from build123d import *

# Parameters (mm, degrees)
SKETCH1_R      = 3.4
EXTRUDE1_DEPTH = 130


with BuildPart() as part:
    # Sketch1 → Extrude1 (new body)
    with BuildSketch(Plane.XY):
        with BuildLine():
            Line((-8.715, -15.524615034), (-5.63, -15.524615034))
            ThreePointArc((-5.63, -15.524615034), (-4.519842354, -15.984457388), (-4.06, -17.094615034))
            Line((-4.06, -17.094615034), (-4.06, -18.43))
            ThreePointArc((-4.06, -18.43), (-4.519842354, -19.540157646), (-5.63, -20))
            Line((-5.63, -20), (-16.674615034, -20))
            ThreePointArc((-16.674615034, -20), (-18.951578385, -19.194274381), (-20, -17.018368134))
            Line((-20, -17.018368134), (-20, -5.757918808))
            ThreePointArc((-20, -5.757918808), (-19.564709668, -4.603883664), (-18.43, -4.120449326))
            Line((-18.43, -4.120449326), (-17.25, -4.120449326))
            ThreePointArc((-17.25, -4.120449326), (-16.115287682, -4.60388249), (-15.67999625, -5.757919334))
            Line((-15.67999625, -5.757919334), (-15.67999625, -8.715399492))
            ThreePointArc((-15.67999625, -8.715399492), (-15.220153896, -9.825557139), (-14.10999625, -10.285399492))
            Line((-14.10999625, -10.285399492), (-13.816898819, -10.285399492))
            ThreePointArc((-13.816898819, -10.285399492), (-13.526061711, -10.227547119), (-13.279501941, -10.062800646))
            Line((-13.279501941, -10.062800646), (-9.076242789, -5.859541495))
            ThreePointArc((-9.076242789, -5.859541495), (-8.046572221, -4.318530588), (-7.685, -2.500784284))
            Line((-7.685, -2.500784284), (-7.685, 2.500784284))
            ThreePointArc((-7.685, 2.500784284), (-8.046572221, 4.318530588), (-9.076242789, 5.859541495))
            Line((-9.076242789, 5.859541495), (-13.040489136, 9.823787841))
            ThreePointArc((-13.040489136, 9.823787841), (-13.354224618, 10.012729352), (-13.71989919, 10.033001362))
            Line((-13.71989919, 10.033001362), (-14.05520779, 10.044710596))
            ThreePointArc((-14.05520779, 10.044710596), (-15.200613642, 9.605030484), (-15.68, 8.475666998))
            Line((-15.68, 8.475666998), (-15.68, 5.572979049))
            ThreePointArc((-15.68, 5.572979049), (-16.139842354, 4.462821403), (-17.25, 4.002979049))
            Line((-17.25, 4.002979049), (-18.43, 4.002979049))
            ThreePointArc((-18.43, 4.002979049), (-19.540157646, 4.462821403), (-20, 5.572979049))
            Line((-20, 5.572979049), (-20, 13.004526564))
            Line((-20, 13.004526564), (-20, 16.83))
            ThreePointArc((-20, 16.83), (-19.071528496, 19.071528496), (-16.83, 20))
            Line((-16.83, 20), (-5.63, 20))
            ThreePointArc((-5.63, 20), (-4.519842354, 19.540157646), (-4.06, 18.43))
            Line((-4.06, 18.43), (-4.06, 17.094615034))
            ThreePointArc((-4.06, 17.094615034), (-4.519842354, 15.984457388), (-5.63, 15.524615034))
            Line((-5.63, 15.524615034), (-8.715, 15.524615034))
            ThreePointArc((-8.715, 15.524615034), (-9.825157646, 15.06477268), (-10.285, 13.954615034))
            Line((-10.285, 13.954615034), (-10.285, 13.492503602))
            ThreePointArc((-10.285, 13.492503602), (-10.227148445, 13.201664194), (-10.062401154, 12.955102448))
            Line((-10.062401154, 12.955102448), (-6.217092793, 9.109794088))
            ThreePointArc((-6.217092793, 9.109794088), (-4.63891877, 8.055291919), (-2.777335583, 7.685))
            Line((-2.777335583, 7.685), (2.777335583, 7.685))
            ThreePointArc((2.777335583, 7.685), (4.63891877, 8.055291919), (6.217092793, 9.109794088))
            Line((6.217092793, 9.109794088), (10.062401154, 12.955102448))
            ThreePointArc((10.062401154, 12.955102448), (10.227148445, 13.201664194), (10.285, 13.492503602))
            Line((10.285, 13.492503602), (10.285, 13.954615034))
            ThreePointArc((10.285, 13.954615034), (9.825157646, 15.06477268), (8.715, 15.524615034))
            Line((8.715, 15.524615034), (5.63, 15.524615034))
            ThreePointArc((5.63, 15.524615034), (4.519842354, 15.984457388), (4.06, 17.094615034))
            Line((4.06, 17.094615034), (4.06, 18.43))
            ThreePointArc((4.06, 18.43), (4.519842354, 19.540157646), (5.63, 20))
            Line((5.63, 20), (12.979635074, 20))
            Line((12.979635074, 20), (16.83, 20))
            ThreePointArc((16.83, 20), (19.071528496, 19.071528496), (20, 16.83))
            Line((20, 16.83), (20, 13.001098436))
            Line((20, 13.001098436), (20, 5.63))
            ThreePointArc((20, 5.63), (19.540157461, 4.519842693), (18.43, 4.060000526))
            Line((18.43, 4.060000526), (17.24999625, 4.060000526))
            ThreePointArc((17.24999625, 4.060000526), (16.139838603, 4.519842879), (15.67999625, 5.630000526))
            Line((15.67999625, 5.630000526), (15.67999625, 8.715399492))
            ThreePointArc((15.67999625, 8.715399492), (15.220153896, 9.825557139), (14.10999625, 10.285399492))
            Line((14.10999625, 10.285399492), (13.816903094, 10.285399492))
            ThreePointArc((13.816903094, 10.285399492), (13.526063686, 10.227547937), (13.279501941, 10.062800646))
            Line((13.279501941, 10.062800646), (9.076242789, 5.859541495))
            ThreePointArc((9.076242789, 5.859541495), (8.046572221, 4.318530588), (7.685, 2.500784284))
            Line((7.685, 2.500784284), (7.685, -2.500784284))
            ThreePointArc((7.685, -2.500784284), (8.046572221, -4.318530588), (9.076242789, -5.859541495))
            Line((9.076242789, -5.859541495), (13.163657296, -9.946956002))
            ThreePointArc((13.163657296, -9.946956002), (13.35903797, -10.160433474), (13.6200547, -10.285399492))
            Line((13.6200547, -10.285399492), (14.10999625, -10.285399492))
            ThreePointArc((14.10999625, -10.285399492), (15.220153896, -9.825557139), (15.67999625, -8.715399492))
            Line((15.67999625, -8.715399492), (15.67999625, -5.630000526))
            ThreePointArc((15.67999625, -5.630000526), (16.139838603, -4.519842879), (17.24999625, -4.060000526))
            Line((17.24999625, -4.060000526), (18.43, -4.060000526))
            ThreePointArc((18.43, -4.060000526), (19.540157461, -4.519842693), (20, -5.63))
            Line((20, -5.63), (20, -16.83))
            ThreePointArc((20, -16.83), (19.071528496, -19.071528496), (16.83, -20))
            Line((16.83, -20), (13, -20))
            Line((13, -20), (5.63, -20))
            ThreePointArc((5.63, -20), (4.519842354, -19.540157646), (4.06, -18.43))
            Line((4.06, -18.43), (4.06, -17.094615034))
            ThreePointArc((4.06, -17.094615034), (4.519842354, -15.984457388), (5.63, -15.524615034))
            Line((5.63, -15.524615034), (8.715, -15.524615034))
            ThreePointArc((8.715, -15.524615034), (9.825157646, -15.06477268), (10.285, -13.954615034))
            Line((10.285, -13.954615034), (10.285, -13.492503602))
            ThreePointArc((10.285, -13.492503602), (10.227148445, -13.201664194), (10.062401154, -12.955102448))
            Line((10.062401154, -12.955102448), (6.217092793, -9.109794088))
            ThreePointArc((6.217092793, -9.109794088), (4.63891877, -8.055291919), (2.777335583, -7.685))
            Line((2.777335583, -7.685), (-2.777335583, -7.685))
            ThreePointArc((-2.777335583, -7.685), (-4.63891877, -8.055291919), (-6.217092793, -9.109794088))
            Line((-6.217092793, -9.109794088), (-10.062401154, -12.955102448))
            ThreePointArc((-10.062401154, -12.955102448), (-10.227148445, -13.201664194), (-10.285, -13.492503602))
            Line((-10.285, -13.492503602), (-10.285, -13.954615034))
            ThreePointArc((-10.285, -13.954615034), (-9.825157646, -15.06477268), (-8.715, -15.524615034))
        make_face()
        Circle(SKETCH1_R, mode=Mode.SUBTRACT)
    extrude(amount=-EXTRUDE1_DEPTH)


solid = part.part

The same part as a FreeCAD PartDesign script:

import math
import FreeCAD as App
import Part
import Sketcher
Q = App.Units.Quantity

doc = App.newDocument("Part")
params = doc.addObject("Spreadsheet::Sheet", "Params")
for row, (alias, value) in enumerate([
    ("sketch1_diameter", "6.8 mm"),
    ("sketch1_radius", "1.57 mm"),
    ("sketch1_radius2", "0.76 mm"),
    ("sketch1_radius3", "3.17 mm"),
    ("sketch1_radius4", "4.75 mm"),
    ("pad1_length", "130 mm"),
], start=1):
    params.set(f"A{row}", alias)
    params.set(f"B{row}", "=" + value)
    params.setAlias(f"B{row}", alias)

body = doc.addObject("PartDesign::Body", "Body")

# Sketch on XY plane
sketch1 = body.newObject("Sketcher::SketchObject", "Sketch")
sketch1.AttachmentSupport = (doc.getObject("XY_Plane"), [""])
sketch1.MapMode = "FlatFace"
sketch1.addGeometry(Part.LineSegment(App.Vector(-5.63, -15.52, 0), App.Vector(-8.71, -15.52, 0)), False)
sketch1.addGeometry(Part.ArcOfCircle(Part.Circle(App.Vector(-8.71, -13.95, 0), App.Vector(0, 0, 1), 1.57), math.radians(-180), math.radians(-90)), False)
sketch1.addGeometry(Part.LineSegment(App.Vector(-10.29, -13.95, 0), App.Vector(-10.29, -13.49, 0)), False)
sketch1.addGeometry(Part.ArcOfCircle(Part.Circle(App.Vector(-9.52, -13.49, 0), App.Vector(0, 0, 1), 0.76), math.radians(135), math.radians(180)), False)
sketch1.addGeometry(Part.LineSegment(App.Vector(-10.06, -12.96, 0), App.Vector(-6.22, -9.11, 0)), False)
sketch1.addGeometry(Part.ArcOfCircle(Part.Circle(App.Vector(-2.78, -12.55, 0), App.Vector(0, 0, 1), 4.86), math.radians(90), math.radians(135)), False)
sketch1.addGeometry(Part.LineSegment(App.Vector(-2.78, -7.68, 0), App.Vector(2.78, -7.68, 0)), False)
sketch1.addGeometry(Part.ArcOfCircle(Part.Circle(App.Vector(2.78, -12.55, 0), App.Vector(0, 0, 1), 4.86), math.radians(45), math.radians(90)), False)
sketch1.addGeometry(Part.LineSegment(App.Vector(6.22, -9.11, 0), App.Vector(10.06, -12.96, 0)), False)
sketch1.addGeometry(Part.ArcOfCircle(Part.Circle(App.Vector(9.52, -13.49, 0), App.Vector(0, 0, 1), 0.76), math.radians(0), math.radians(45)), False)
sketch1.addGeometry(Part.LineSegment(App.Vector(10.29, -13.49, 0), App.Vector(10.29, -13.95, 0)), False)
sketch1.addGeometry(Part.ArcOfCircle(Part.Circle(App.Vector(8.71, -13.95, 0), App.Vector(0, 0, 1), 1.57), math.radians(-90), math.radians(0)), False)
sketch1.addGeometry(Part.LineSegment(App.Vector(8.71, -15.52, 0), App.Vector(5.63, -15.52, 0)), False)
sketch1.addGeometry(Part.ArcOfCircle(Part.Circle(App.Vector(5.63, -17.09, 0), App.Vector(0, 0, 1), 1.57), math.radians(90), math.radians(180)), False)
sketch1.addGeometry(Part.LineSegment(App.Vector(4.06, -17.09, 0), App.Vector(4.06, -18.43, 0)), False)
sketch1.addGeometry(Part.ArcOfCircle(Part.Circle(App.Vector(5.63, -18.43, 0), App.Vector(0, 0, 1), 1.57), math.radians(-180), math.radians(-90)), False)
sketch1.addGeometry(Part.LineSegment(App.Vector(5.63, -20, 0), App.Vector(16.83, -20, 0)), False)
sketch1.addGeometry(Part.ArcOfCircle(Part.Circle(App.Vector(16.83, -16.83, 0), App.Vector(0, 0, 1), 3.17), math.radians(-90), math.radians(0)), False)
sketch1.addGeometry(Part.LineSegment(App.Vector(20, -16.83, 0), App.Vector(20, -5.63, 0)), False)
sketch1.addGeometry(Part.ArcOfCircle(Part.Circle(App.Vector(18.43, -5.63, 0), App.Vector(0, 0, 1), 1.57), math.radians(0), math.radians(90)), False)
sketch1.addGeometry(Part.LineSegment(App.Vector(18.43, -4.06, 0), App.Vector(17.25, -4.06, 0)), False)
sketch1.addGeometry(Part.ArcOfCircle(Part.Circle(App.Vector(17.25, -5.63, 0), App.Vector(0, 0, 1), 1.57), math.radians(90), math.radians(180)), False)
sketch1.addGeometry(Part.LineSegment(App.Vector(15.68, -5.63, 0), App.Vector(15.68, -8.72, 0)), False)
sketch1.addGeometry(Part.ArcOfCircle(Part.Circle(App.Vector(14.11, -8.72, 0), App.Vector(0, 0, 1), 1.57), math.radians(-90), math.radians(0)), False)
sketch1.addGeometry(Part.LineSegment(App.Vector(14.11, -10.29, 0), App.Vector(13.62, -10.29, 0)), False)
sketch1.addGeometry(Part.ArcOfCircle(Part.Circle(App.Vector(13.81, -9.55, 0), App.Vector(0, 0, 1), 0.76), math.radians(-149), math.radians(-105)), False)
sketch1.addGeometry(Part.LineSegment(App.Vector(13.16, -9.95, 0), App.Vector(9.08, -5.86, 0)), False)
sketch1.addGeometry(Part.ArcOfCircle(Part.Circle(App.Vector(12.44, -2.5, 0), App.Vector(0, 0, 1), 4.75), math.radians(-180), math.radians(-135)), False)
sketch1.addGeometry(Part.LineSegment(App.Vector(7.68, -2.5, 0), App.Vector(7.68, 2.5, 0)), False)
sketch1.addGeometry(Part.ArcOfCircle(Part.Circle(App.Vector(12.44, 2.5, 0), App.Vector(0, 0, 1), 4.75), math.radians(135), math.radians(180)), False)
sketch1.addGeometry(Part.LineSegment(App.Vector(9.08, 5.86, 0), App.Vector(13.28, 10.06, 0)), False)
sketch1.addGeometry(Part.ArcOfCircle(Part.Circle(App.Vector(13.82, 9.53, 0), App.Vector(0, 0, 1), 0.76), math.radians(90), math.radians(135)), False)
sketch1.addGeometry(Part.LineSegment(App.Vector(13.82, 10.29, 0), App.Vector(14.11, 10.29, 0)), False)
sketch1.addGeometry(Part.ArcOfCircle(Part.Circle(App.Vector(14.11, 8.72, 0), App.Vector(0, 0, 1), 1.57), math.radians(0), math.radians(90)), False)
sketch1.addGeometry(Part.LineSegment(App.Vector(15.68, 8.72, 0), App.Vector(15.68, 5.63, 0)), False)
sketch1.addGeometry(Part.ArcOfCircle(Part.Circle(App.Vector(17.25, 5.63, 0), App.Vector(0, 0, 1), 1.57), math.radians(180), math.radians(270)), False)
sketch1.addGeometry(Part.LineSegment(App.Vector(17.25, 4.06, 0), App.Vector(18.43, 4.06, 0)), False)
sketch1.addGeometry(Part.ArcOfCircle(Part.Circle(App.Vector(18.43, 5.63, 0), App.Vector(0, 0, 1), 1.57), math.radians(-90), math.radians(0)), False)
sketch1.addGeometry(Part.LineSegment(App.Vector(20, 5.63, 0), App.Vector(20, 16.83, 0)), False)
sketch1.addGeometry(Part.ArcOfCircle(Part.Circle(App.Vector(16.83, 16.83, 0), App.Vector(0, 0, 1), 3.17), math.radians(0), math.radians(90)), False)
sketch1.addGeometry(Part.LineSegment(App.Vector(16.83, 20, 0), App.Vector(5.63, 20, 0)), False)
sketch1.addGeometry(Part.ArcOfCircle(Part.Circle(App.Vector(5.63, 18.43, 0), App.Vector(0, 0, 1), 1.57), math.radians(90), math.radians(180)), False)
sketch1.addGeometry(Part.LineSegment(App.Vector(4.06, 18.43, 0), App.Vector(4.06, 17.09, 0)), False)
sketch1.addGeometry(Part.ArcOfCircle(Part.Circle(App.Vector(5.63, 17.09, 0), App.Vector(0, 0, 1), 1.57), math.radians(-180), math.radians(-90)), False)
sketch1.addGeometry(Part.LineSegment(App.Vector(5.63, 15.52, 0), App.Vector(8.71, 15.52, 0)), False)
sketch1.addGeometry(Part.ArcOfCircle(Part.Circle(App.Vector(8.71, 13.95, 0), App.Vector(0, 0, 1), 1.57), math.radians(0), math.radians(90)), False)
sketch1.addGeometry(Part.LineSegment(App.Vector(10.29, 13.95, 0), App.Vector(10.29, 13.49, 0)), False)
sketch1.addGeometry(Part.ArcOfCircle(Part.Circle(App.Vector(9.52, 13.49, 0), App.Vector(0, 0, 1), 0.76), math.radians(-45), math.radians(0)), False)
sketch1.addGeometry(Part.LineSegment(App.Vector(10.06, 12.96, 0), App.Vector(6.22, 9.11, 0)), False)
sketch1.addGeometry(Part.ArcOfCircle(Part.Circle(App.Vector(2.78, 12.55, 0), App.Vector(0, 0, 1), 4.86), math.radians(-90), math.radians(-45)), False)
sketch1.addGeometry(Part.LineSegment(App.Vector(2.78, 7.68, 0), App.Vector(-2.78, 7.68, 0)), False)
sketch1.addGeometry(Part.ArcOfCircle(Part.Circle(App.Vector(-2.78, 12.55, 0), App.Vector(0, 0, 1), 4.86), math.radians(-135), math.radians(-90)), False)
sketch1.addGeometry(Part.LineSegment(App.Vector(-6.22, 9.11, 0), App.Vector(-10.06, 12.96, 0)), False)
sketch1.addGeometry(Part.ArcOfCircle(Part.Circle(App.Vector(-9.52, 13.49, 0), App.Vector(0, 0, 1), 0.76), math.radians(180), math.radians(225)), False)
sketch1.addGeometry(Part.LineSegment(App.Vector(-10.29, 13.49, 0), App.Vector(-10.29, 13.95, 0)), False)
sketch1.addGeometry(Part.ArcOfCircle(Part.Circle(App.Vector(-8.71, 13.95, 0), App.Vector(0, 0, 1), 1.57), math.radians(90), math.radians(180)), False)
sketch1.addGeometry(Part.LineSegment(App.Vector(-8.71, 15.52, 0), App.Vector(-5.63, 15.52, 0)), False)
sketch1.addGeometry(Part.ArcOfCircle(Part.Circle(App.Vector(-5.63, 17.09, 0), App.Vector(0, 0, 1), 1.57), math.radians(-90), math.radians(0)), False)
sketch1.addGeometry(Part.LineSegment(App.Vector(-4.06, 17.09, 0), App.Vector(-4.06, 18.43, 0)), False)
sketch1.addGeometry(Part.ArcOfCircle(Part.Circle(App.Vector(-5.63, 18.43, 0), App.Vector(0, 0, 1), 1.57), math.radians(0), math.radians(90)), False)
sketch1.addGeometry(Part.LineSegment(App.Vector(-5.63, 20, 0), App.Vector(-16.83, 20, 0)), False)
sketch1.addGeometry(Part.ArcOfCircle(Part.Circle(App.Vector(-16.83, 16.83, 0), App.Vector(0, 0, 1), 3.17), math.radians(90), math.radians(180)), False)
sketch1.addGeometry(Part.LineSegment(App.Vector(-20, 16.83, 0), App.Vector(-20, 5.57, 0)), False)
sketch1.addGeometry(Part.ArcOfCircle(Part.Circle(App.Vector(-18.43, 5.57, 0), App.Vector(0, 0, 1), 1.57), math.radians(-180), math.radians(-90)), False)
sketch1.addGeometry(Part.LineSegment(App.Vector(-18.43, 4, 0), App.Vector(-17.25, 4, 0)), False)
sketch1.addGeometry(Part.ArcOfCircle(Part.Circle(App.Vector(-17.25, 5.57, 0), App.Vector(0, 0, 1), 1.57), math.radians(-90), math.radians(0)), False)
sketch1.addGeometry(Part.LineSegment(App.Vector(-15.68, 5.57, 0), App.Vector(-15.68, 8.48, 0)), False)
sketch1.addGeometry(Part.ArcOfCircle(Part.Circle(App.Vector(-14.11, 8.48, 0), App.Vector(0, 0, 1), 1.57), math.radians(88), math.radians(180)), False)
sketch1.addGeometry(Part.LineSegment(App.Vector(-14.06, 10.04, 0), App.Vector(-13.72, 10.03, 0)), False)
sketch1.addGeometry(Part.ArcOfCircle(Part.Circle(App.Vector(-13.58, 9.29, 0), App.Vector(0, 0, 1), 0.76), math.radians(45), math.radians(101)), False)
sketch1.addGeometry(Part.LineSegment(App.Vector(-13.04, 9.82, 0), App.Vector(-9.08, 5.86, 0)), False)
sketch1.addGeometry(Part.ArcOfCircle(Part.Circle(App.Vector(-12.44, 2.5, 0), App.Vector(0, 0, 1), 4.75), math.radians(0), math.radians(45)), False)
sketch1.addGeometry(Part.LineSegment(App.Vector(-7.68, 2.5, 0), App.Vector(-7.68, -2.5, 0)), False)
sketch1.addGeometry(Part.ArcOfCircle(Part.Circle(App.Vector(-12.44, -2.5, 0), App.Vector(0, 0, 1), 4.75), math.radians(-45), math.radians(0)), False)
sketch1.addGeometry(Part.LineSegment(App.Vector(-9.08, -5.86, 0), App.Vector(-13.28, -10.06, 0)), False)
sketch1.addGeometry(Part.ArcOfCircle(Part.Circle(App.Vector(-13.82, -9.53, 0), App.Vector(0, 0, 1), 0.76), math.radians(-90), math.radians(-45)), False)
sketch1.addGeometry(Part.LineSegment(App.Vector(-13.82, -10.29, 0), App.Vector(-14.11, -10.29, 0)), False)
sketch1.addGeometry(Part.ArcOfCircle(Part.Circle(App.Vector(-14.11, -8.72, 0), App.Vector(0, 0, 1), 1.57), math.radians(180), math.radians(270)), False)
sketch1.addGeometry(Part.LineSegment(App.Vector(-15.68, -8.72, 0), App.Vector(-15.68, -5.76, 0)), False)
sketch1.addGeometry(Part.ArcOfCircle(Part.Circle(App.Vector(-17.25, -5.69, 0), App.Vector(0, 0, 1), 1.57), math.radians(-2), math.radians(90)), False)
sketch1.addGeometry(Part.LineSegment(App.Vector(-17.25, -4.12, 0), App.Vector(-18.43, -4.12, 0)), False)
sketch1.addGeometry(Part.ArcOfCircle(Part.Circle(App.Vector(-18.43, -5.69, 0), App.Vector(0, 0, 1), 1.57), math.radians(90), math.radians(182)), False)
sketch1.addGeometry(Part.LineSegment(App.Vector(-20, -5.76, 0), App.Vector(-20, -17.02, 0)), False)
sketch1.addGeometry(Part.ArcOfCircle(Part.Circle(App.Vector(-16.84, -16.83, 0), App.Vector(0, 0, 1), 3.17), math.radians(-177), math.radians(-87)), False)
sketch1.addGeometry(Part.LineSegment(App.Vector(-16.67, -20, 0), App.Vector(-5.63, -20, 0)), False)
sketch1.addGeometry(Part.ArcOfCircle(Part.Circle(App.Vector(-5.63, -18.43, 0), App.Vector(0, 0, 1), 1.57), math.radians(-90), math.radians(0)), False)
sketch1.addGeometry(Part.LineSegment(App.Vector(-4.06, -18.43, 0), App.Vector(-4.06, -17.09, 0)), False)
sketch1.addGeometry(Part.ArcOfCircle(Part.Circle(App.Vector(-5.63, -17.09, 0), App.Vector(0, 0, 1), 1.57), math.radians(0), math.radians(90)), False)
sketch1.addGeometry(Part.Circle(App.Vector(0, 0, 0), App.Vector(0, 0, 1), 3.4), False)
sketch1.addConstraint(Sketcher.Constraint("Tangent", 0, 2, 1, 2))
sketch1.addConstraint(Sketcher.Constraint("Tangent", 1, 1, 2, 1))
sketch1.addConstraint(Sketcher.Constraint("Tangent", 2, 2, 3, 2))
sketch1.addConstraint(Sketcher.Constraint("Tangent", 3, 1, 4, 1))
sketch1.addConstraint(Sketcher.Constraint("Tangent", 4, 2, 5, 2))
sketch1.addConstraint(Sketcher.Constraint("Tangent", 5, 1, 6, 1))
sketch1.addConstraint(Sketcher.Constraint("Tangent", 6, 2, 7, 2))
sketch1.addConstraint(Sketcher.Constraint("Tangent", 7, 1, 8, 1))
sketch1.addConstraint(Sketcher.Constraint("Tangent", 8, 2, 9, 2))
sketch1.addConstraint(Sketcher.Constraint("Tangent", 9, 1, 10, 1))
sketch1.addConstraint(Sketcher.Constraint("Tangent", 10, 2, 11, 2))
sketch1.addConstraint(Sketcher.Constraint("Tangent", 11, 1, 12, 1))
sketch1.addConstraint(Sketcher.Constraint("Tangent", 12, 2, 13, 1))
sketch1.addConstraint(Sketcher.Constraint("Tangent", 13, 2, 14, 1))
sketch1.addConstraint(Sketcher.Constraint("Tangent", 14, 2, 15, 1))
sketch1.addConstraint(Sketcher.Constraint("Tangent", 15, 2, 16, 1))
sketch1.addConstraint(Sketcher.Constraint("Tangent", 16, 2, 17, 1))
sketch1.addConstraint(Sketcher.Constraint("Tangent", 17, 2, 18, 1))
sketch1.addConstraint(Sketcher.Constraint("Tangent", 18, 2, 19, 1))
sketch1.addConstraint(Sketcher.Constraint("Tangent", 19, 2, 20, 1))
sketch1.addConstraint(Sketcher.Constraint("Tangent", 20, 2, 21, 1))
sketch1.addConstraint(Sketcher.Constraint("Tangent", 21, 2, 22, 1))
sketch1.addConstraint(Sketcher.Constraint("Tangent", 22, 2, 23, 2))
sketch1.addConstraint(Sketcher.Constraint("Tangent", 23, 1, 24, 1))
sketch1.addConstraint(Sketcher.Constraint("Coincident", 24, 2, 25, 2))
sketch1.addConstraint(Sketcher.Constraint("Coincident", 25, 1, 26, 1))
sketch1.addConstraint(Sketcher.Constraint("Tangent", 26, 2, 27, 2))
sketch1.addConstraint(Sketcher.Constraint("Tangent", 27, 1, 28, 1))
sketch1.addConstraint(Sketcher.Constraint("Tangent", 28, 2, 29, 2))
sketch1.addConstraint(Sketcher.Constraint("Tangent", 29, 1, 30, 1))
sketch1.addConstraint(Sketcher.Constraint("Tangent", 30, 2, 31, 2))
sketch1.addConstraint(Sketcher.Constraint("Tangent", 31, 1, 32, 1))
sketch1.addConstraint(Sketcher.Constraint("Tangent", 32, 2, 33, 2))
sketch1.addConstraint(Sketcher.Constraint("Tangent", 33, 1, 34, 1))
sketch1.addConstraint(Sketcher.Constraint("Tangent", 34, 2, 35, 1))
sketch1.addConstraint(Sketcher.Constraint("Tangent", 35, 2, 36, 1))
sketch1.addConstraint(Sketcher.Constraint("Tangent", 36, 2, 37, 1))
sketch1.addConstraint(Sketcher.Constraint("Tangent", 37, 2, 38, 1))
sketch1.addConstraint(Sketcher.Constraint("Tangent", 38, 2, 39, 1))
sketch1.addConstraint(Sketcher.Constraint("Tangent", 39, 2, 40, 1))
sketch1.addConstraint(Sketcher.Constraint("Tangent", 40, 2, 41, 1))
sketch1.addConstraint(Sketcher.Constraint("Tangent", 41, 2, 42, 1))
sketch1.addConstraint(Sketcher.Constraint("Tangent", 42, 2, 43, 1))
sketch1.addConstraint(Sketcher.Constraint("Tangent", 43, 2, 44, 1))
sketch1.addConstraint(Sketcher.Constraint("Tangent", 44, 2, 45, 2))
sketch1.addConstraint(Sketcher.Constraint("Tangent", 45, 1, 46, 1))
sketch1.addConstraint(Sketcher.Constraint("Tangent", 46, 2, 47, 2))
sketch1.addConstraint(Sketcher.Constraint("Tangent", 47, 1, 48, 1))
sketch1.addConstraint(Sketcher.Constraint("Tangent", 48, 2, 49, 2))
sketch1.addConstraint(Sketcher.Constraint("Tangent", 49, 1, 50, 1))
sketch1.addConstraint(Sketcher.Constraint("Tangent", 50, 2, 51, 2))
sketch1.addConstraint(Sketcher.Constraint("Tangent", 51, 1, 52, 1))
sketch1.addConstraint(Sketcher.Constraint("Tangent", 52, 2, 53, 2))
sketch1.addConstraint(Sketcher.Constraint("Tangent", 53, 1, 54, 1))
sketch1.addConstraint(Sketcher.Constraint("Tangent", 54, 2, 55, 2))
sketch1.addConstraint(Sketcher.Constraint("Tangent", 55, 1, 56, 1))
sketch1.addConstraint(Sketcher.Constraint("Tangent", 56, 2, 57, 1))
sketch1.addConstraint(Sketcher.Constraint("Tangent", 57, 2, 58, 1))
sketch1.addConstraint(Sketcher.Constraint("Tangent", 58, 2, 59, 1))
sketch1.addConstraint(Sketcher.Constraint("Tangent", 59, 2, 60, 1))
sketch1.addConstraint(Sketcher.Constraint("Tangent", 60, 2, 61, 1))
sketch1.addConstraint(Sketcher.Constraint("Tangent", 61, 2, 62, 1))
sketch1.addConstraint(Sketcher.Constraint("Tangent", 62, 2, 63, 1))
sketch1.addConstraint(Sketcher.Constraint("Tangent", 63, 2, 64, 1))
sketch1.addConstraint(Sketcher.Constraint("Tangent", 64, 2, 65, 1))
sketch1.addConstraint(Sketcher.Constraint("Tangent", 65, 2, 66, 1))
sketch1.addConstraint(Sketcher.Constraint("Tangent", 66, 2, 67, 2))
sketch1.addConstraint(Sketcher.Constraint("Tangent", 67, 1, 68, 1))
sketch1.addConstraint(Sketcher.Constraint("Coincident", 68, 2, 69, 2))
sketch1.addConstraint(Sketcher.Constraint("Tangent", 69, 1, 70, 1))
sketch1.addConstraint(Sketcher.Constraint("Tangent", 70, 2, 71, 2))
sketch1.addConstraint(Sketcher.Constraint("Tangent", 71, 1, 72, 1))
sketch1.addConstraint(Sketcher.Constraint("Tangent", 72, 2, 73, 2))
sketch1.addConstraint(Sketcher.Constraint("Tangent", 73, 1, 74, 1))
sketch1.addConstraint(Sketcher.Constraint("Tangent", 74, 2, 75, 2))
sketch1.addConstraint(Sketcher.Constraint("Coincident", 75, 1, 76, 1))
sketch1.addConstraint(Sketcher.Constraint("Tangent", 76, 2, 77, 2))
sketch1.addConstraint(Sketcher.Constraint("Tangent", 77, 1, 78, 1))
sketch1.addConstraint(Sketcher.Constraint("Coincident", 78, 2, 79, 1))
sketch1.addConstraint(Sketcher.Constraint("Coincident", 79, 2, 80, 1))
sketch1.addConstraint(Sketcher.Constraint("Coincident", 80, 2, 81, 1))
sketch1.addConstraint(Sketcher.Constraint("Coincident", 81, 2, 82, 1))
sketch1.addConstraint(Sketcher.Constraint("Coincident", 82, 2, 83, 1))
sketch1.addConstraint(Sketcher.Constraint("Coincident", 83, 2, 84, 1))
sketch1.addConstraint(Sketcher.Constraint("Tangent", 84, 2, 85, 1))
sketch1.addConstraint(Sketcher.Constraint("Tangent", 85, 2, 86, 1))
sketch1.addConstraint(Sketcher.Constraint("Tangent", 86, 2, 87, 1))
sketch1.addConstraint(Sketcher.Constraint("Tangent", 87, 2, 0, 1))
sketch1.addConstraint(Sketcher.Constraint("Horizontal", 0))
sketch1.addConstraint(Sketcher.Constraint("Vertical", 2))
sketch1.addConstraint(Sketcher.Constraint("Horizontal", 6))
sketch1.addConstraint(Sketcher.Constraint("Vertical", 10))
sketch1.addConstraint(Sketcher.Constraint("Horizontal", 12))
sketch1.addConstraint(Sketcher.Constraint("Vertical", 14))
sketch1.addConstraint(Sketcher.Constraint("Horizontal", 16))
sketch1.addConstraint(Sketcher.Constraint("Vertical", 18))
sketch1.addConstraint(Sketcher.Constraint("Horizontal", 20))
sketch1.addConstraint(Sketcher.Constraint("Vertical", 22))
sketch1.addConstraint(Sketcher.Constraint("Horizontal", 24))
sketch1.addConstraint(Sketcher.Constraint("Vertical", 28))
sketch1.addConstraint(Sketcher.Constraint("Horizontal", 32))
sketch1.addConstraint(Sketcher.Constraint("Vertical", 34))
sketch1.addConstraint(Sketcher.Constraint("Horizontal", 36))
sketch1.addConstraint(Sketcher.Constraint("Vertical", 38))
sketch1.addConstraint(Sketcher.Constraint("Horizontal", 40))
sketch1.addConstraint(Sketcher.Constraint("Vertical", 42))
sketch1.addConstraint(Sketcher.Constraint("Horizontal", 44))
sketch1.addConstraint(Sketcher.Constraint("Vertical", 46))
sketch1.addConstraint(Sketcher.Constraint("Horizontal", 50))
sketch1.addConstraint(Sketcher.Constraint("Vertical", 54))
sketch1.addConstraint(Sketcher.Constraint("Horizontal", 56))
sketch1.addConstraint(Sketcher.Constraint("Vertical", 58))
sketch1.addConstraint(Sketcher.Constraint("Horizontal", 60))
sketch1.addConstraint(Sketcher.Constraint("Vertical", 62))
sketch1.addConstraint(Sketcher.Constraint("Horizontal", 64))
sketch1.addConstraint(Sketcher.Constraint("Vertical", 66))
sketch1.addConstraint(Sketcher.Constraint("Vertical", 72))
sketch1.addConstraint(Sketcher.Constraint("Horizontal", 76))
sketch1.addConstraint(Sketcher.Constraint("Vertical", 78))
sketch1.addConstraint(Sketcher.Constraint("Horizontal", 80))
sketch1.addConstraint(Sketcher.Constraint("Vertical", 82))
sketch1.addConstraint(Sketcher.Constraint("Horizontal", 84))
sketch1.addConstraint(Sketcher.Constraint("Vertical", 86))
sketch1.addConstraint(Sketcher.Constraint("Coincident", 88, 3, -1, 1))
sketch1.addConstraint(Sketcher.Constraint("Equal", 5, 7))
sketch1.addConstraint(Sketcher.Constraint("Equal", 3, 9))
sketch1.addConstraint(Sketcher.Constraint("Equal", 1, 11))
sketch1.addConstraint(Sketcher.Constraint("Equal", 11, 13))
sketch1.addConstraint(Sketcher.Constraint("Equal", 13, 15))
sketch1.addConstraint(Sketcher.Constraint("Equal", 15, 19))
sketch1.addConstraint(Sketcher.Constraint("Equal", 19, 21))
sketch1.addConstraint(Sketcher.Constraint("Equal", 21, 23))
sketch1.addConstraint(Sketcher.Constraint("Equal", 9, 25))
sketch1.addConstraint(Sketcher.Constraint("Equal", 27, 29))
sketch1.addConstraint(Sketcher.Constraint("Equal", 25, 31))
sketch1.addConstraint(Sketcher.Constraint("Equal", 23, 33))
sketch1.addConstraint(Sketcher.Constraint("Equal", 33, 35))
sketch1.addConstraint(Sketcher.Constraint("Equal", 35, 37))
sketch1.addConstraint(Sketcher.Constraint("Equal", 17, 39))
sketch1.addConstraint(Sketcher.Constraint("Equal", 37, 41))
sketch1.addConstraint(Sketcher.Constraint("Equal", 41, 43))
sketch1.addConstraint(Sketcher.Constraint("Equal", 43, 45))
sketch1.addConstraint(Sketcher.Constraint("Equal", 31, 47))
sketch1.addConstraint(Sketcher.Constraint("Equal", 7, 49))
sketch1.addConstraint(Sketcher.Constraint("Equal", 49, 51))
sketch1.addConstraint(Sketcher.Constraint("Equal", 47, 53))
sketch1.addConstraint(Sketcher.Constraint("Equal", 45, 55))
sketch1.addConstraint(Sketcher.Constraint("Equal", 55, 57))
sketch1.addConstraint(Sketcher.Constraint("Equal", 57, 59))
sketch1.addConstraint(Sketcher.Constraint("Equal", 39, 61))
sketch1.addConstraint(Sketcher.Constraint("Equal", 59, 63))
sketch1.addConstraint(Sketcher.Constraint("Equal", 63, 65))
sketch1.addConstraint(Sketcher.Constraint("Equal", 65, 67))
sketch1.addConstraint(Sketcher.Constraint("Equal", 53, 69))
sketch1.addConstraint(Sketcher.Constraint("Equal", 29, 71))
sketch1.addConstraint(Sketcher.Constraint("Equal", 71, 73))
sketch1.addConstraint(Sketcher.Constraint("Equal", 69, 75))
sketch1.addConstraint(Sketcher.Constraint("Equal", 67, 77))
sketch1.addConstraint(Sketcher.Constraint("Equal", 77, 79))
sketch1.addConstraint(Sketcher.Constraint("Equal", 79, 81))
sketch1.addConstraint(Sketcher.Constraint("Equal", 61, 83))
sketch1.addConstraint(Sketcher.Constraint("Equal", 81, 85))
sketch1.addConstraint(Sketcher.Constraint("Equal", 85, 87))
sketch1.addConstraint(Sketcher.Constraint("Symmetric", 1, 3, 45, 3, -1, 1))
sketch1.addConstraint(Sketcher.Constraint("Symmetric", 5, 3, 49, 3, -1, 1))
sketch1.addConstraint(Sketcher.Constraint("Symmetric", 9, 3, 53, 3, -1, 1))
sketch1.addConstraint(Sketcher.Constraint("Symmetric", 13, 3, 57, 3, -1, 1))
sketch1.addConstraint(Sketcher.Constraint("Symmetric", 17, 3, 61, 3, -1, 1))
sketch1.addConstraint(Sketcher.Constraint("Symmetric", 27, 3, 71, 3, -1, 1))
sketch1.addConstraint(Sketcher.Constraint("Symmetric", 31, 3, 75, 3, -1, 1))
sketch1.addConstraint(Sketcher.Constraint("Symmetric", 41, 3, 85, 3, -1, 1))
sketch1.addConstraint(Sketcher.Constraint("Symmetric", 3, 3, 9, 3, -2))
sketch1.addConstraint(Sketcher.Constraint("Symmetric", 43, 3, 57, 3, -2))
sketch1.addConstraint(Sketcher.Constraint("Symmetric", 39, 3, 61, 3, -2))
sketch1.addConstraint(Sketcher.Constraint("Symmetric", 23, 3, 77, 3, -2))
sketch1.addConstraint(Sketcher.Constraint("Symmetric", 48, 2, 51, 1, -2))
sketch1.addConstraint(Sketcher.Constraint("Symmetric", 29, 1, 70, 2, -2))
sketch1.addConstraint(Sketcher.Constraint("Symmetric", 26, 2, 73, 1, -2))
sketch1.addConstraint(Sketcher.Constraint("Symmetric", 21, 3, 35, 3, -1))
sketch1.addConstraint(Sketcher.Constraint("Perpendicular", 4, 8))
sketch1.addConstraint(Sketcher.Constraint("Parallel", 8, 26))
sketch1.addConstraint(Sketcher.Constraint("Perpendicular", 26, 30))
sketch1.addConstraint(Sketcher.Constraint("Horizontal", 78, 2, 81, 2))
sketch1.addConstraint(Sketcher.Constraint("Vertical", 64, 2, 79, 2))
sketch1.addConstraint(Sketcher.Constraint("Vertical", 63, 2, 80, 2))
sketch1.addConstraint(Sketcher.Constraint("Vertical", 62, 2, 81, 2))
sketch1.addConstraint(Sketcher.Constraint("Equal", 60, 18))
sketch1.addConstraint(Sketcher.Constraint("Diameter", 88, 6.8))
sketch1.addConstraint(Sketcher.Constraint("Angle", 68, Q("-2 deg")))
sketch1.addConstraint(Sketcher.Constraint("Radius", 1, 1.57))
sketch1.addConstraint(Sketcher.Constraint("Radius", 3, 0.76))
sketch1.addConstraint(Sketcher.Constraint("Radius", 17, 3.17))
sketch1.addConstraint(Sketcher.Constraint("Radius", 27, 4.75))
sketch1.addConstraint(Sketcher.Constraint("DistanceX", 16, 1, 16, 2, 11.2))
sketch1.addConstraint(Sketcher.Constraint("DistanceY", 15, 2, -1, 1, 20.0))
sketch1.addConstraint(Sketcher.Constraint("DistanceX", -1, 1, 17, 2, 20.0))
sketch1.addConstraint(Sketcher.Constraint("DistanceX", 64, 1, 64, 2, 1.18))
sketch1.addConstraint(Sketcher.Constraint("DistanceX", 0, 2, 0, 1, 3.085))
sketch1.addConstraint(Sketcher.Constraint("Radius", 5, 4.864551))
sketch1.addConstraint(Sketcher.Constraint("DistanceY", 22, 2, 22, 1, 3.085399))
sketch1.addConstraint(Sketcher.Constraint("DistanceX", -1, 1, 27, 3, 12.435))
sketch1.addConstraint(Sketcher.Constraint("DistanceY", 5, 1, -1, 1, 7.685))
sketch1.addConstraint(Sketcher.Constraint("DistanceY", -1, 1, 68, 2, 10.033001))
sketch1.addConstraint(Sketcher.Constraint("DistanceX", 6, 1, 6, 2, 5.554671))
sketch1.addConstraint(Sketcher.Constraint("DistanceX", 24, 2, 24, 1, 0.489942))
sketch1.addConstraint(Sketcher.Constraint("DistanceY", 2, 1, 2, 2, 0.462111))
sketch1.addConstraint(Sketcher.Constraint("DistanceY", 28, 1, 28, 2, 5.001569))
sketch1.addConstraint(Sketcher.Constraint("DistanceY", 62, 2, 62, 1, 11.257021))
sketch1.addConstraint(Sketcher.Constraint("DistanceY", 78, 1, 78, 2, 2.95748))
sketch1.addConstraint(Sketcher.Constraint("DistanceY", 82, 2, 82, 1, 11.260449))
sketch1.addConstraint(Sketcher.Constraint("DistanceX", 68, 2, -1, 1, 13.719899))
sketch1.addConstraint(Sketcher.Constraint("DistanceX", 75, 1, -1, 1, 13.816899))
sketch1.addConstraint(Sketcher.Constraint("DistanceX", 20, 2, 20, 1, 1.180004))
sketch1.addConstraint(Sketcher.Constraint("DistanceX", 84, 1, 84, 2, 11.044615))
sketch1.addConstraint(Sketcher.Constraint("DistanceX", -1, 1, 25, 3, 13.811732))
sketch1.addConstraint(Sketcher.Constraint("DistanceY", 79, 3, -1, 1, 5.690449))
sketch1.setExpression("Constraints[187]", "Params.sketch1_diameter")
sketch1.setExpression("Constraints[189]", "Params.sketch1_radius")
sketch1.setExpression("Constraints[190]", "Params.sketch1_radius2")
sketch1.setExpression("Constraints[191]", "Params.sketch1_radius3")
sketch1.setExpression("Constraints[192]", "Params.sketch1_radius4")
pad1 = body.newObject("PartDesign::Pad", "Pad")
pad1.Profile = sketch1
pad1.setExpression("Length", "Params.pad1_length")
pad1.Reversed = True

doc.recompute()
